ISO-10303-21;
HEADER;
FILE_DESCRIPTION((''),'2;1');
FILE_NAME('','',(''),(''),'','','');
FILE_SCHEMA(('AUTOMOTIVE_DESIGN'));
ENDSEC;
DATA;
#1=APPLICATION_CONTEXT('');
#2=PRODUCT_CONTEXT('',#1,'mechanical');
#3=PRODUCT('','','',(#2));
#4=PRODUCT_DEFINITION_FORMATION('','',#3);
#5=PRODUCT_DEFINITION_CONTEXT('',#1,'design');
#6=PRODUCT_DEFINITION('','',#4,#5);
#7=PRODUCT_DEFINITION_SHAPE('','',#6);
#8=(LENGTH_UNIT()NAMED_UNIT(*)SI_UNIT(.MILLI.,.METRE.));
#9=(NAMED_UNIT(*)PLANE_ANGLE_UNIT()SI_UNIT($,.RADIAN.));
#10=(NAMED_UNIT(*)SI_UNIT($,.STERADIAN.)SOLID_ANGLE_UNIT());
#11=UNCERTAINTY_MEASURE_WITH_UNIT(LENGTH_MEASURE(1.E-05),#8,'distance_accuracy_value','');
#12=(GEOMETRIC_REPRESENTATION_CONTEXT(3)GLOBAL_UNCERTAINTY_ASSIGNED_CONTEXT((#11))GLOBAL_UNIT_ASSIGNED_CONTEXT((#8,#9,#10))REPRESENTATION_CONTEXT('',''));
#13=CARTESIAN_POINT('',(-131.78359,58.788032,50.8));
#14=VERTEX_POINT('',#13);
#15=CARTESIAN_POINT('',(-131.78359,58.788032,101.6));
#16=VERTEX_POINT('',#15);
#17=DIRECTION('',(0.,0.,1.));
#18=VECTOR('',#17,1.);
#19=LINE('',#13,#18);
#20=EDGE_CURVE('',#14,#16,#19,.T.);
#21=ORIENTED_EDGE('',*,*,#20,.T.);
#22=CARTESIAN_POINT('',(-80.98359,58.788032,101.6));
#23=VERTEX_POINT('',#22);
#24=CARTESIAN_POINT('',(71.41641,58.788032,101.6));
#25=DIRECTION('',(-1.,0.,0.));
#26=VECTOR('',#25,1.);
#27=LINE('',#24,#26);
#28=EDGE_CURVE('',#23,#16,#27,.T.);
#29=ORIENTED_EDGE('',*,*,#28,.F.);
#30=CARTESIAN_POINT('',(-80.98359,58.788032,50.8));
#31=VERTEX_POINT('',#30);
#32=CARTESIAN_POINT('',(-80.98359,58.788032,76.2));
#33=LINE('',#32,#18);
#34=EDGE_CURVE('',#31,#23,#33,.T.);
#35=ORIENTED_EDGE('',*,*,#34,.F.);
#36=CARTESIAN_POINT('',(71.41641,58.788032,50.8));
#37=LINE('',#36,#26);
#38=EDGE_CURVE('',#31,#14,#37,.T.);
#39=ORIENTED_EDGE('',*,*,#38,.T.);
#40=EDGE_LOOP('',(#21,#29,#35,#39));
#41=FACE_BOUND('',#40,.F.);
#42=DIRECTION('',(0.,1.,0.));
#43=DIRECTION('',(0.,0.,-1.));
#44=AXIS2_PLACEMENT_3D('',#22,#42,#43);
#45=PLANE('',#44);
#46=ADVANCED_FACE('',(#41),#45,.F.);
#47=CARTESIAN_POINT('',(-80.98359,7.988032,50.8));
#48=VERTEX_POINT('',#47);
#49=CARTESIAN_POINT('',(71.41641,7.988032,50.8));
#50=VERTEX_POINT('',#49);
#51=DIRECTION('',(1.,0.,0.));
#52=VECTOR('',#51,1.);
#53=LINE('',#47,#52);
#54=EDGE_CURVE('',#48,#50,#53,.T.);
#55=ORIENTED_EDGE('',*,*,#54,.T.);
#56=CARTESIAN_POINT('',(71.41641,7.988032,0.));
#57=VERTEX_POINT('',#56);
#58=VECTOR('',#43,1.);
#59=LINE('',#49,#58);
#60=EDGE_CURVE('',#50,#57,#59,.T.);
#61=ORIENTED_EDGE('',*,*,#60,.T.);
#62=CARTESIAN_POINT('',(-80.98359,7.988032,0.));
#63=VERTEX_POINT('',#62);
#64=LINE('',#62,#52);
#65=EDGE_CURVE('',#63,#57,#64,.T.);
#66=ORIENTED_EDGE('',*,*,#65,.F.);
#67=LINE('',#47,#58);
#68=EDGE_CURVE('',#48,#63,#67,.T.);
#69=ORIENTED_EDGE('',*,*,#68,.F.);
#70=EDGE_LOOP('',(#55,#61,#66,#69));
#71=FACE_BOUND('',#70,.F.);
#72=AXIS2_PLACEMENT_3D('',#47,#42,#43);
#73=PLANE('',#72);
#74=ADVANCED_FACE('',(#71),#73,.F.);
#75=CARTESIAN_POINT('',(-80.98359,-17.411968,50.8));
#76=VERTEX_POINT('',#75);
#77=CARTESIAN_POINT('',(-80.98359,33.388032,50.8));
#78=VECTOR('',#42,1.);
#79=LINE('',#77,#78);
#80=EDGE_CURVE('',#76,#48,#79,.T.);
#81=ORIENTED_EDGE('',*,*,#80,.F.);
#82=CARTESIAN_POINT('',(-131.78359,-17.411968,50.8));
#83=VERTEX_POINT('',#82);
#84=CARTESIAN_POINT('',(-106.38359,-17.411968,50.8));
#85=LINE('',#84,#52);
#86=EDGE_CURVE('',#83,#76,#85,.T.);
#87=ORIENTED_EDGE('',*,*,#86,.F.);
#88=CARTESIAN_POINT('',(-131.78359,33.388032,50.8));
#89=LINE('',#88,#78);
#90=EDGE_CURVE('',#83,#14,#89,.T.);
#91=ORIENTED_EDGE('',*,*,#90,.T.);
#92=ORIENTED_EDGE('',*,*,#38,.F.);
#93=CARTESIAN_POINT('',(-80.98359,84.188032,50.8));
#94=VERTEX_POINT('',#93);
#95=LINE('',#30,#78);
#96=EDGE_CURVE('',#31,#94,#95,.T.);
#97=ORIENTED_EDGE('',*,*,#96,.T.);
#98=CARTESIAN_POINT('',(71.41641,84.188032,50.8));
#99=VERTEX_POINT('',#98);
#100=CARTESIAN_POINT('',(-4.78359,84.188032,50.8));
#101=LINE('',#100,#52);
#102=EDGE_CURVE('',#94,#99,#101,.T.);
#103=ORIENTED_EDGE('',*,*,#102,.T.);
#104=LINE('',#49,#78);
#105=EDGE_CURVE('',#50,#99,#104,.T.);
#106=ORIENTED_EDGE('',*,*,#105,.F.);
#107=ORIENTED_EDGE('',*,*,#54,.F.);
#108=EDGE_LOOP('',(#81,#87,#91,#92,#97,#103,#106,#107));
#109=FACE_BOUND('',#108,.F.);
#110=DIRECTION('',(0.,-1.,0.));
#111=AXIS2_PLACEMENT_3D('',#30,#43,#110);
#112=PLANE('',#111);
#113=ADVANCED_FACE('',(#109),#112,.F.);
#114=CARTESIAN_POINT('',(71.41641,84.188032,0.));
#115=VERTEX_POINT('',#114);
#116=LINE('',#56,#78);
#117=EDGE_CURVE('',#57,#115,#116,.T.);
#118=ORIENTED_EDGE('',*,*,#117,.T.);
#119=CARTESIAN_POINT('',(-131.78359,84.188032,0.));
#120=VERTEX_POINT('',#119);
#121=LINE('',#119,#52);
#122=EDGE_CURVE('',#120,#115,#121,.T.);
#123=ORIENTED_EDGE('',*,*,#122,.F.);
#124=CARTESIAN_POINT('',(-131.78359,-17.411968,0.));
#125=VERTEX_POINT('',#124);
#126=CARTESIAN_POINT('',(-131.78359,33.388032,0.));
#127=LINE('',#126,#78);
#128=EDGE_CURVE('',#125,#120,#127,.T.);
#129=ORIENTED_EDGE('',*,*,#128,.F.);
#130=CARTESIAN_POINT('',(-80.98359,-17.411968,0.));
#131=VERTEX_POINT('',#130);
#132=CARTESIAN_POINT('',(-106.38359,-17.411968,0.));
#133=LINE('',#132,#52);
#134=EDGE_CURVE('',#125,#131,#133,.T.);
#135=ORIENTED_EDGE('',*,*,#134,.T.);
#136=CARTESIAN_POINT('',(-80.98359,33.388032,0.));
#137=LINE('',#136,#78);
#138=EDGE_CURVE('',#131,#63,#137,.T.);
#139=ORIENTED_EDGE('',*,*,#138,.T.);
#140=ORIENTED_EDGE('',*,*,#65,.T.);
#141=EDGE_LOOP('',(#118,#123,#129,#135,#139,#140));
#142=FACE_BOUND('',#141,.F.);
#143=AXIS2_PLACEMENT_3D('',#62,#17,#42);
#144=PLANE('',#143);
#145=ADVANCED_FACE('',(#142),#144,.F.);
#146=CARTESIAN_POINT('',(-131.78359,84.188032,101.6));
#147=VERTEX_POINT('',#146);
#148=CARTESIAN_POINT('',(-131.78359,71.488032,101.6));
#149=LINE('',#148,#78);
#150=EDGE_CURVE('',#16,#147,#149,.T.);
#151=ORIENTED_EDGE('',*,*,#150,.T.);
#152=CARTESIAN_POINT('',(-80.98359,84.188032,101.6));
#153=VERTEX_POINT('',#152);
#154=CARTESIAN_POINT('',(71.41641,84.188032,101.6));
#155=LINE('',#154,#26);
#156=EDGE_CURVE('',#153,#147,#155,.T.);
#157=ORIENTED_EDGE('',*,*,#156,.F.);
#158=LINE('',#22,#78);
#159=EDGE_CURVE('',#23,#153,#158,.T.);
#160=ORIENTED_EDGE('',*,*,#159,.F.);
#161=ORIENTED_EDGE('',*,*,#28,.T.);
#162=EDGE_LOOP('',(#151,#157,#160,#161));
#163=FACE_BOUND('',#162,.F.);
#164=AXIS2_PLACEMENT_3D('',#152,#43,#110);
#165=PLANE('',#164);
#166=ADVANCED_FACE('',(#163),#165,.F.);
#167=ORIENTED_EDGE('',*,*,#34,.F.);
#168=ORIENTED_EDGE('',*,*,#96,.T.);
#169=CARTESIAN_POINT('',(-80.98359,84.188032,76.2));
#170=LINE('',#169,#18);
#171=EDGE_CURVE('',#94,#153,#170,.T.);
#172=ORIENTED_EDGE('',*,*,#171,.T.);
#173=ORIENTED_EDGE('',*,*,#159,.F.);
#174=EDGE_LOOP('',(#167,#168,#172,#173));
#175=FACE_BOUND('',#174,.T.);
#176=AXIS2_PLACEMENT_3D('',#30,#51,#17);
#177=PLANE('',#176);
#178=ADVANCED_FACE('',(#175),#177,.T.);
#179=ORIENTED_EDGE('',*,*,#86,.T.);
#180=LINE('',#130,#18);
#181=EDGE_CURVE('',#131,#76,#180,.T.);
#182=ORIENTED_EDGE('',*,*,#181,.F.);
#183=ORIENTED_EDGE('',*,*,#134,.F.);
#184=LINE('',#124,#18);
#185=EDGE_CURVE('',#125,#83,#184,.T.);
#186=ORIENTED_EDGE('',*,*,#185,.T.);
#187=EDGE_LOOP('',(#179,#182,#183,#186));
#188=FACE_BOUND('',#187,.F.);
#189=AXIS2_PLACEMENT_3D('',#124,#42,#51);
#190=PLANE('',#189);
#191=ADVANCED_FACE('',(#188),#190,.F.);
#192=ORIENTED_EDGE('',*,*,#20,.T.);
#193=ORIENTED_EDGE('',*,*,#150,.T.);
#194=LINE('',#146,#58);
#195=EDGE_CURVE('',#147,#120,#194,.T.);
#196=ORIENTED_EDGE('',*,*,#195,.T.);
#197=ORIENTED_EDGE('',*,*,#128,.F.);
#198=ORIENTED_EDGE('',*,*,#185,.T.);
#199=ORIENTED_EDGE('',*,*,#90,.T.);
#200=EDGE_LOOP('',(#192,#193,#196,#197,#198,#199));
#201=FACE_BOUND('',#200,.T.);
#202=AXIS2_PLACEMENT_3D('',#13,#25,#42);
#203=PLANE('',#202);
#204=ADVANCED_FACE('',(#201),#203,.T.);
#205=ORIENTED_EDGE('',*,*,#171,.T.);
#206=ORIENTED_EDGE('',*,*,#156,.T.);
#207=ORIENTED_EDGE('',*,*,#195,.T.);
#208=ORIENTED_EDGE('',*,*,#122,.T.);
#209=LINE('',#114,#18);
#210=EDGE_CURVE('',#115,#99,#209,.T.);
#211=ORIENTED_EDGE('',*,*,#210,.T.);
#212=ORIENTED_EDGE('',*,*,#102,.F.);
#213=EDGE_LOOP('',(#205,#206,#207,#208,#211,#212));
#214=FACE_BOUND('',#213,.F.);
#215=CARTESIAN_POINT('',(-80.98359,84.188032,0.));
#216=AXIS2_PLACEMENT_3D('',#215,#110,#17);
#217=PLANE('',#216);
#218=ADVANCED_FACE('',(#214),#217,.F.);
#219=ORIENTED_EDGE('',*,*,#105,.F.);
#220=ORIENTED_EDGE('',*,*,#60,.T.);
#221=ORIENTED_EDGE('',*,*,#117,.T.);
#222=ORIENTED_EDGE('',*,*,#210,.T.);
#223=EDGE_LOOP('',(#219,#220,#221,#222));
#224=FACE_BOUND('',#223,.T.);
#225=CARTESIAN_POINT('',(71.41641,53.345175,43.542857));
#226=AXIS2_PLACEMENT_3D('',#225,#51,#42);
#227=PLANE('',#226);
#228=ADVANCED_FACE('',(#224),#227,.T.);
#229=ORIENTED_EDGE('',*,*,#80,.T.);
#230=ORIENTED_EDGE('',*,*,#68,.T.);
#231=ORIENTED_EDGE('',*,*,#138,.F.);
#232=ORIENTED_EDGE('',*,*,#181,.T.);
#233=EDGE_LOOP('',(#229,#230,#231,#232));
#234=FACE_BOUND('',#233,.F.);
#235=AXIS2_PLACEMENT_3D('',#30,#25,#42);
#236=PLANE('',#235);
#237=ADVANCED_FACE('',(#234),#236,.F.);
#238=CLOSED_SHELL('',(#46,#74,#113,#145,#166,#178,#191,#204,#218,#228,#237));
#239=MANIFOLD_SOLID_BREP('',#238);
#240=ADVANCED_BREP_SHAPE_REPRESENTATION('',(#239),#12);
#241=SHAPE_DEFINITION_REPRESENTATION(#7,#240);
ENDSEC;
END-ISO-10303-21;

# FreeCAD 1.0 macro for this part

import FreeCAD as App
import Part
import Sketcher

V = App.Vector
Q = App.Units.Quantity


def add_polygon(sketch, points):
    """Adds a closed chain of lines whose ends are joined by coincident constraints."""
    first, n = sketch.GeometryCount, len(points)
    for a, b in zip(points, points[1:] + points[:1]):
        sketch.addGeometry(Part.LineSegment(App.Vector(*a, 0), App.Vector(*b, 0)), False)
    for i in range(n):
        sketch.addConstraint(Sketcher.Constraint("Coincident", first + i, 2, first + (i + 1) % n, 1))

doc = App.newDocument("Part")
params = doc.addObject("Spreadsheet::Sheet", "Params")
for row, (alias, value) in enumerate([
    ("sketch1_width", "2 in"),
    ("sketch1_height", "4 in"),
    ("pad1_length", "2 in"),
    ("sketch2_width", "2 in"),
    ("sketch2_height", "1 in"),
    ("pad2_length", "2 in"),
    ("sketch3_width", "2 in"),
    ("sketch3_width2", "3 in"),
    ("pad3_length", "6 in"),
    ("sketch4_width", "6 in"),
    ("sketch4_height", "2 in"),
    ("pocket1_length", "1 in"),
], start=1):
    params.set(f"A{row}", alias)
    params.set(f"B{row}", "=" + value)
    params.setAlias(f"B{row}", alias)

body = doc.addObject("PartDesign::Body", "Body")

sketch1 = body.newObject("Sketcher::SketchObject", "Sketch")
sketch1.AttachmentSupport = (doc.getObject("XY_Plane"), [""])
sketch1.MapMode = "FlatFace"
add_polygon(sketch1, [(-132, 84), (-132, -17), (-81, -17), (-81, 84)])
sketch1.addConstraint(Sketcher.Constraint("Vertical", 0))
sketch1.addConstraint(Sketcher.Constraint("Horizontal", 1))
sketch1.addConstraint(Sketcher.Constraint("Vertical", 2))
sketch1.addConstraint(Sketcher.Constraint("Horizontal", 3))
sketch1.addConstraint(Sketcher.Constraint("DistanceX", 1, 1, 1, 2, Q("2 in")))
sketch1.addConstraint(Sketcher.Constraint("DistanceY", 0, 2, 0, 1, Q("4 in")))
sketch1.addConstraint(Sketcher.Constraint("DistanceX", 0, 2, -1, 1, Q("131.78359 mm")))
sketch1.addConstraint(Sketcher.Constraint("DistanceY", 0, 2, -1, 1, Q("17.411968 mm")))
sketch1.setExpression("Constraints[8]", "Params.sketch1_width")
sketch1.setExpression("Constraints[9]", "Params.sketch1_height")
pad1 = body.newObject("PartDesign::Pad", "Pad")
pad1.Profile = sketch1
pad1.setExpression("Length", "Params.pad1_length")

sketch2 = body.newObject("Sketcher::SketchObject", "Sketch001")
sketch2.AttachmentSupport = (doc.getObject("XY_Plane"), [""])
sketch2.MapMode = "FlatFace"
sketch2.AttachmentOffset = App.Placement(V(0, 0, 2 * 25.4), App.Rotation())
add_polygon(sketch2, [(-132, 84), (-132, 59), (-81, 59), (-81, 84)])
sketch2.addConstraint(Sketcher.Constraint("Vertical", 0))
sketch2.addConstraint(Sketcher.Constraint("Horizontal", 1))
sketch2.addConstraint(Sketcher.Constraint("Vertical", 2))
sketch2.addConstraint(Sketcher.Constraint("Horizontal", 3))
sketch2.addConstraint(Sketcher.Constraint("DistanceX", 1, 1, 1, 2, Q("2 in")))
sketch2.addConstraint(Sketcher.Constraint("DistanceY", 0, 2, 0, 1, Q("1 in")))
sketch2.addConstraint(Sketcher.Constraint("DistanceX", 0, 2, -1, 1, Q("131.78359 mm")))
sketch2.addConstraint(Sketcher.Constraint("DistanceY", -1, 1, 0, 2, Q("58.788032 mm")))
sketch2.setExpression("Constraints[8]", "Params.sketch2_width")
sketch2.setExpression("Constraints[9]", "Params.sketch2_height")
pad2 = body.newObject("PartDesign::Pad", "Pad001")
pad2.Profile = sketch2
pad2.setExpression("Length", "Params.pad2_length")

sketch3 = body.newObject("Sketcher::SketchObject", "Sketch002")
sketch3.AttachmentSupport = (doc.getObject("YZ_Plane"), [""])
sketch3.MapMode = "FlatFace"
sketch3.AttachmentOffset = App.Placement(V(0, 0, -80.98359), App.Rotation())
add_polygon(sketch3, [(59, 51), (8, 51), (8, 0), (84, 0), (84, 102), (59, 102)])
sketch3.addConstraint(Sketcher.Constraint("Horizontal", 0))
sketch3.addConstraint(Sketcher.Constraint("Vertical", 1))
sketch3.addConstraint(Sketcher.Constraint("Horizontal", 2))
sketch3.addConstraint(Sketcher.Constraint("Vertical", 3))
sketch3.addConstraint(Sketcher.Constraint("Horizontal", 4))
sketch3.addConstraint(Sketcher.Constraint("Vertical", 5))
sketch3.addConstraint(Sketcher.Constraint("PointOnObject", 1, 2, -1))
sketch3.addConstraint(Sketcher.Constraint("Equal", 0, 1))
sketch3.addConstraint(Sketcher.Constraint("Equal", 1, 5))
sketch3.addConstraint(Sketcher.Constraint("DistanceX", 0, 2, 0, 1, Q("2 in")))
sketch3.addConstraint(Sketcher.Constraint("DistanceX", 2, 1, 2, 2, Q("3 in")))
sketch3.addConstraint(Sketcher.Constraint("DistanceX", -1, 1, 0, 2, Q("7.988032 mm")))
sketch3.setExpression("Constraints[15]", "Params.sketch3_width")
sketch3.setExpression("Constraints[16]", "Params.sketch3_width2")
pad3 = body.newObject("PartDesign::Pad", "Pad002")
pad3.Profile = sketch3
pad3.setExpression("Length", "Params.pad3_length")

sketch4 = body.newObject("Sketcher::SketchObject", "Sketch003")
sketch4.AttachmentSupport = (doc.getObject("XZ_Plane"), [""])
sketch4.MapMode = "FlatFace"
sketch4.AttachmentOffset = App.Placement(V(0, 0, -58.788032), App.Rotation())
add_polygon(sketch4, [(-81, 102), (-81, 51), (71, 51), (71, 102)])
sketch4.addConstraint(Sketcher.Constraint("Vertical", 0))
sketch4.addConstraint(Sketcher.Constraint("Horizontal", 1))
sketch4.addConstraint(Sketcher.Constraint("Vertical", 2))
sketch4.addConstraint(Sketcher.Constraint("Horizontal", 3))
sketch4.addConstraint(Sketcher.Constraint("DistanceX", 1, 1, 1, 2, Q("6 in")))
sketch4.addConstraint(Sketcher.Constraint("DistanceY", 0, 2, 0, 1, Q("2 in")))
sketch4.addConstraint(Sketcher.Constraint("DistanceY", -1, 1, 0, 2, Q("2 in")))
sketch4.addConstraint(Sketcher.Constraint("DistanceX", 0, 2, -1, 1, Q("80.98359 mm")))
sketch4.setExpression("Constraints[8]", "Params.sketch4_width")
sketch4.setExpression("Constraints[9]", "Params.sketch4_height")
pocket1 = body.newObject("PartDesign::Pocket", "Pocket")
pocket1.Profile = sketch4
pocket1.setExpression("Length", "Params.pocket1_length")

doc.recompute()
